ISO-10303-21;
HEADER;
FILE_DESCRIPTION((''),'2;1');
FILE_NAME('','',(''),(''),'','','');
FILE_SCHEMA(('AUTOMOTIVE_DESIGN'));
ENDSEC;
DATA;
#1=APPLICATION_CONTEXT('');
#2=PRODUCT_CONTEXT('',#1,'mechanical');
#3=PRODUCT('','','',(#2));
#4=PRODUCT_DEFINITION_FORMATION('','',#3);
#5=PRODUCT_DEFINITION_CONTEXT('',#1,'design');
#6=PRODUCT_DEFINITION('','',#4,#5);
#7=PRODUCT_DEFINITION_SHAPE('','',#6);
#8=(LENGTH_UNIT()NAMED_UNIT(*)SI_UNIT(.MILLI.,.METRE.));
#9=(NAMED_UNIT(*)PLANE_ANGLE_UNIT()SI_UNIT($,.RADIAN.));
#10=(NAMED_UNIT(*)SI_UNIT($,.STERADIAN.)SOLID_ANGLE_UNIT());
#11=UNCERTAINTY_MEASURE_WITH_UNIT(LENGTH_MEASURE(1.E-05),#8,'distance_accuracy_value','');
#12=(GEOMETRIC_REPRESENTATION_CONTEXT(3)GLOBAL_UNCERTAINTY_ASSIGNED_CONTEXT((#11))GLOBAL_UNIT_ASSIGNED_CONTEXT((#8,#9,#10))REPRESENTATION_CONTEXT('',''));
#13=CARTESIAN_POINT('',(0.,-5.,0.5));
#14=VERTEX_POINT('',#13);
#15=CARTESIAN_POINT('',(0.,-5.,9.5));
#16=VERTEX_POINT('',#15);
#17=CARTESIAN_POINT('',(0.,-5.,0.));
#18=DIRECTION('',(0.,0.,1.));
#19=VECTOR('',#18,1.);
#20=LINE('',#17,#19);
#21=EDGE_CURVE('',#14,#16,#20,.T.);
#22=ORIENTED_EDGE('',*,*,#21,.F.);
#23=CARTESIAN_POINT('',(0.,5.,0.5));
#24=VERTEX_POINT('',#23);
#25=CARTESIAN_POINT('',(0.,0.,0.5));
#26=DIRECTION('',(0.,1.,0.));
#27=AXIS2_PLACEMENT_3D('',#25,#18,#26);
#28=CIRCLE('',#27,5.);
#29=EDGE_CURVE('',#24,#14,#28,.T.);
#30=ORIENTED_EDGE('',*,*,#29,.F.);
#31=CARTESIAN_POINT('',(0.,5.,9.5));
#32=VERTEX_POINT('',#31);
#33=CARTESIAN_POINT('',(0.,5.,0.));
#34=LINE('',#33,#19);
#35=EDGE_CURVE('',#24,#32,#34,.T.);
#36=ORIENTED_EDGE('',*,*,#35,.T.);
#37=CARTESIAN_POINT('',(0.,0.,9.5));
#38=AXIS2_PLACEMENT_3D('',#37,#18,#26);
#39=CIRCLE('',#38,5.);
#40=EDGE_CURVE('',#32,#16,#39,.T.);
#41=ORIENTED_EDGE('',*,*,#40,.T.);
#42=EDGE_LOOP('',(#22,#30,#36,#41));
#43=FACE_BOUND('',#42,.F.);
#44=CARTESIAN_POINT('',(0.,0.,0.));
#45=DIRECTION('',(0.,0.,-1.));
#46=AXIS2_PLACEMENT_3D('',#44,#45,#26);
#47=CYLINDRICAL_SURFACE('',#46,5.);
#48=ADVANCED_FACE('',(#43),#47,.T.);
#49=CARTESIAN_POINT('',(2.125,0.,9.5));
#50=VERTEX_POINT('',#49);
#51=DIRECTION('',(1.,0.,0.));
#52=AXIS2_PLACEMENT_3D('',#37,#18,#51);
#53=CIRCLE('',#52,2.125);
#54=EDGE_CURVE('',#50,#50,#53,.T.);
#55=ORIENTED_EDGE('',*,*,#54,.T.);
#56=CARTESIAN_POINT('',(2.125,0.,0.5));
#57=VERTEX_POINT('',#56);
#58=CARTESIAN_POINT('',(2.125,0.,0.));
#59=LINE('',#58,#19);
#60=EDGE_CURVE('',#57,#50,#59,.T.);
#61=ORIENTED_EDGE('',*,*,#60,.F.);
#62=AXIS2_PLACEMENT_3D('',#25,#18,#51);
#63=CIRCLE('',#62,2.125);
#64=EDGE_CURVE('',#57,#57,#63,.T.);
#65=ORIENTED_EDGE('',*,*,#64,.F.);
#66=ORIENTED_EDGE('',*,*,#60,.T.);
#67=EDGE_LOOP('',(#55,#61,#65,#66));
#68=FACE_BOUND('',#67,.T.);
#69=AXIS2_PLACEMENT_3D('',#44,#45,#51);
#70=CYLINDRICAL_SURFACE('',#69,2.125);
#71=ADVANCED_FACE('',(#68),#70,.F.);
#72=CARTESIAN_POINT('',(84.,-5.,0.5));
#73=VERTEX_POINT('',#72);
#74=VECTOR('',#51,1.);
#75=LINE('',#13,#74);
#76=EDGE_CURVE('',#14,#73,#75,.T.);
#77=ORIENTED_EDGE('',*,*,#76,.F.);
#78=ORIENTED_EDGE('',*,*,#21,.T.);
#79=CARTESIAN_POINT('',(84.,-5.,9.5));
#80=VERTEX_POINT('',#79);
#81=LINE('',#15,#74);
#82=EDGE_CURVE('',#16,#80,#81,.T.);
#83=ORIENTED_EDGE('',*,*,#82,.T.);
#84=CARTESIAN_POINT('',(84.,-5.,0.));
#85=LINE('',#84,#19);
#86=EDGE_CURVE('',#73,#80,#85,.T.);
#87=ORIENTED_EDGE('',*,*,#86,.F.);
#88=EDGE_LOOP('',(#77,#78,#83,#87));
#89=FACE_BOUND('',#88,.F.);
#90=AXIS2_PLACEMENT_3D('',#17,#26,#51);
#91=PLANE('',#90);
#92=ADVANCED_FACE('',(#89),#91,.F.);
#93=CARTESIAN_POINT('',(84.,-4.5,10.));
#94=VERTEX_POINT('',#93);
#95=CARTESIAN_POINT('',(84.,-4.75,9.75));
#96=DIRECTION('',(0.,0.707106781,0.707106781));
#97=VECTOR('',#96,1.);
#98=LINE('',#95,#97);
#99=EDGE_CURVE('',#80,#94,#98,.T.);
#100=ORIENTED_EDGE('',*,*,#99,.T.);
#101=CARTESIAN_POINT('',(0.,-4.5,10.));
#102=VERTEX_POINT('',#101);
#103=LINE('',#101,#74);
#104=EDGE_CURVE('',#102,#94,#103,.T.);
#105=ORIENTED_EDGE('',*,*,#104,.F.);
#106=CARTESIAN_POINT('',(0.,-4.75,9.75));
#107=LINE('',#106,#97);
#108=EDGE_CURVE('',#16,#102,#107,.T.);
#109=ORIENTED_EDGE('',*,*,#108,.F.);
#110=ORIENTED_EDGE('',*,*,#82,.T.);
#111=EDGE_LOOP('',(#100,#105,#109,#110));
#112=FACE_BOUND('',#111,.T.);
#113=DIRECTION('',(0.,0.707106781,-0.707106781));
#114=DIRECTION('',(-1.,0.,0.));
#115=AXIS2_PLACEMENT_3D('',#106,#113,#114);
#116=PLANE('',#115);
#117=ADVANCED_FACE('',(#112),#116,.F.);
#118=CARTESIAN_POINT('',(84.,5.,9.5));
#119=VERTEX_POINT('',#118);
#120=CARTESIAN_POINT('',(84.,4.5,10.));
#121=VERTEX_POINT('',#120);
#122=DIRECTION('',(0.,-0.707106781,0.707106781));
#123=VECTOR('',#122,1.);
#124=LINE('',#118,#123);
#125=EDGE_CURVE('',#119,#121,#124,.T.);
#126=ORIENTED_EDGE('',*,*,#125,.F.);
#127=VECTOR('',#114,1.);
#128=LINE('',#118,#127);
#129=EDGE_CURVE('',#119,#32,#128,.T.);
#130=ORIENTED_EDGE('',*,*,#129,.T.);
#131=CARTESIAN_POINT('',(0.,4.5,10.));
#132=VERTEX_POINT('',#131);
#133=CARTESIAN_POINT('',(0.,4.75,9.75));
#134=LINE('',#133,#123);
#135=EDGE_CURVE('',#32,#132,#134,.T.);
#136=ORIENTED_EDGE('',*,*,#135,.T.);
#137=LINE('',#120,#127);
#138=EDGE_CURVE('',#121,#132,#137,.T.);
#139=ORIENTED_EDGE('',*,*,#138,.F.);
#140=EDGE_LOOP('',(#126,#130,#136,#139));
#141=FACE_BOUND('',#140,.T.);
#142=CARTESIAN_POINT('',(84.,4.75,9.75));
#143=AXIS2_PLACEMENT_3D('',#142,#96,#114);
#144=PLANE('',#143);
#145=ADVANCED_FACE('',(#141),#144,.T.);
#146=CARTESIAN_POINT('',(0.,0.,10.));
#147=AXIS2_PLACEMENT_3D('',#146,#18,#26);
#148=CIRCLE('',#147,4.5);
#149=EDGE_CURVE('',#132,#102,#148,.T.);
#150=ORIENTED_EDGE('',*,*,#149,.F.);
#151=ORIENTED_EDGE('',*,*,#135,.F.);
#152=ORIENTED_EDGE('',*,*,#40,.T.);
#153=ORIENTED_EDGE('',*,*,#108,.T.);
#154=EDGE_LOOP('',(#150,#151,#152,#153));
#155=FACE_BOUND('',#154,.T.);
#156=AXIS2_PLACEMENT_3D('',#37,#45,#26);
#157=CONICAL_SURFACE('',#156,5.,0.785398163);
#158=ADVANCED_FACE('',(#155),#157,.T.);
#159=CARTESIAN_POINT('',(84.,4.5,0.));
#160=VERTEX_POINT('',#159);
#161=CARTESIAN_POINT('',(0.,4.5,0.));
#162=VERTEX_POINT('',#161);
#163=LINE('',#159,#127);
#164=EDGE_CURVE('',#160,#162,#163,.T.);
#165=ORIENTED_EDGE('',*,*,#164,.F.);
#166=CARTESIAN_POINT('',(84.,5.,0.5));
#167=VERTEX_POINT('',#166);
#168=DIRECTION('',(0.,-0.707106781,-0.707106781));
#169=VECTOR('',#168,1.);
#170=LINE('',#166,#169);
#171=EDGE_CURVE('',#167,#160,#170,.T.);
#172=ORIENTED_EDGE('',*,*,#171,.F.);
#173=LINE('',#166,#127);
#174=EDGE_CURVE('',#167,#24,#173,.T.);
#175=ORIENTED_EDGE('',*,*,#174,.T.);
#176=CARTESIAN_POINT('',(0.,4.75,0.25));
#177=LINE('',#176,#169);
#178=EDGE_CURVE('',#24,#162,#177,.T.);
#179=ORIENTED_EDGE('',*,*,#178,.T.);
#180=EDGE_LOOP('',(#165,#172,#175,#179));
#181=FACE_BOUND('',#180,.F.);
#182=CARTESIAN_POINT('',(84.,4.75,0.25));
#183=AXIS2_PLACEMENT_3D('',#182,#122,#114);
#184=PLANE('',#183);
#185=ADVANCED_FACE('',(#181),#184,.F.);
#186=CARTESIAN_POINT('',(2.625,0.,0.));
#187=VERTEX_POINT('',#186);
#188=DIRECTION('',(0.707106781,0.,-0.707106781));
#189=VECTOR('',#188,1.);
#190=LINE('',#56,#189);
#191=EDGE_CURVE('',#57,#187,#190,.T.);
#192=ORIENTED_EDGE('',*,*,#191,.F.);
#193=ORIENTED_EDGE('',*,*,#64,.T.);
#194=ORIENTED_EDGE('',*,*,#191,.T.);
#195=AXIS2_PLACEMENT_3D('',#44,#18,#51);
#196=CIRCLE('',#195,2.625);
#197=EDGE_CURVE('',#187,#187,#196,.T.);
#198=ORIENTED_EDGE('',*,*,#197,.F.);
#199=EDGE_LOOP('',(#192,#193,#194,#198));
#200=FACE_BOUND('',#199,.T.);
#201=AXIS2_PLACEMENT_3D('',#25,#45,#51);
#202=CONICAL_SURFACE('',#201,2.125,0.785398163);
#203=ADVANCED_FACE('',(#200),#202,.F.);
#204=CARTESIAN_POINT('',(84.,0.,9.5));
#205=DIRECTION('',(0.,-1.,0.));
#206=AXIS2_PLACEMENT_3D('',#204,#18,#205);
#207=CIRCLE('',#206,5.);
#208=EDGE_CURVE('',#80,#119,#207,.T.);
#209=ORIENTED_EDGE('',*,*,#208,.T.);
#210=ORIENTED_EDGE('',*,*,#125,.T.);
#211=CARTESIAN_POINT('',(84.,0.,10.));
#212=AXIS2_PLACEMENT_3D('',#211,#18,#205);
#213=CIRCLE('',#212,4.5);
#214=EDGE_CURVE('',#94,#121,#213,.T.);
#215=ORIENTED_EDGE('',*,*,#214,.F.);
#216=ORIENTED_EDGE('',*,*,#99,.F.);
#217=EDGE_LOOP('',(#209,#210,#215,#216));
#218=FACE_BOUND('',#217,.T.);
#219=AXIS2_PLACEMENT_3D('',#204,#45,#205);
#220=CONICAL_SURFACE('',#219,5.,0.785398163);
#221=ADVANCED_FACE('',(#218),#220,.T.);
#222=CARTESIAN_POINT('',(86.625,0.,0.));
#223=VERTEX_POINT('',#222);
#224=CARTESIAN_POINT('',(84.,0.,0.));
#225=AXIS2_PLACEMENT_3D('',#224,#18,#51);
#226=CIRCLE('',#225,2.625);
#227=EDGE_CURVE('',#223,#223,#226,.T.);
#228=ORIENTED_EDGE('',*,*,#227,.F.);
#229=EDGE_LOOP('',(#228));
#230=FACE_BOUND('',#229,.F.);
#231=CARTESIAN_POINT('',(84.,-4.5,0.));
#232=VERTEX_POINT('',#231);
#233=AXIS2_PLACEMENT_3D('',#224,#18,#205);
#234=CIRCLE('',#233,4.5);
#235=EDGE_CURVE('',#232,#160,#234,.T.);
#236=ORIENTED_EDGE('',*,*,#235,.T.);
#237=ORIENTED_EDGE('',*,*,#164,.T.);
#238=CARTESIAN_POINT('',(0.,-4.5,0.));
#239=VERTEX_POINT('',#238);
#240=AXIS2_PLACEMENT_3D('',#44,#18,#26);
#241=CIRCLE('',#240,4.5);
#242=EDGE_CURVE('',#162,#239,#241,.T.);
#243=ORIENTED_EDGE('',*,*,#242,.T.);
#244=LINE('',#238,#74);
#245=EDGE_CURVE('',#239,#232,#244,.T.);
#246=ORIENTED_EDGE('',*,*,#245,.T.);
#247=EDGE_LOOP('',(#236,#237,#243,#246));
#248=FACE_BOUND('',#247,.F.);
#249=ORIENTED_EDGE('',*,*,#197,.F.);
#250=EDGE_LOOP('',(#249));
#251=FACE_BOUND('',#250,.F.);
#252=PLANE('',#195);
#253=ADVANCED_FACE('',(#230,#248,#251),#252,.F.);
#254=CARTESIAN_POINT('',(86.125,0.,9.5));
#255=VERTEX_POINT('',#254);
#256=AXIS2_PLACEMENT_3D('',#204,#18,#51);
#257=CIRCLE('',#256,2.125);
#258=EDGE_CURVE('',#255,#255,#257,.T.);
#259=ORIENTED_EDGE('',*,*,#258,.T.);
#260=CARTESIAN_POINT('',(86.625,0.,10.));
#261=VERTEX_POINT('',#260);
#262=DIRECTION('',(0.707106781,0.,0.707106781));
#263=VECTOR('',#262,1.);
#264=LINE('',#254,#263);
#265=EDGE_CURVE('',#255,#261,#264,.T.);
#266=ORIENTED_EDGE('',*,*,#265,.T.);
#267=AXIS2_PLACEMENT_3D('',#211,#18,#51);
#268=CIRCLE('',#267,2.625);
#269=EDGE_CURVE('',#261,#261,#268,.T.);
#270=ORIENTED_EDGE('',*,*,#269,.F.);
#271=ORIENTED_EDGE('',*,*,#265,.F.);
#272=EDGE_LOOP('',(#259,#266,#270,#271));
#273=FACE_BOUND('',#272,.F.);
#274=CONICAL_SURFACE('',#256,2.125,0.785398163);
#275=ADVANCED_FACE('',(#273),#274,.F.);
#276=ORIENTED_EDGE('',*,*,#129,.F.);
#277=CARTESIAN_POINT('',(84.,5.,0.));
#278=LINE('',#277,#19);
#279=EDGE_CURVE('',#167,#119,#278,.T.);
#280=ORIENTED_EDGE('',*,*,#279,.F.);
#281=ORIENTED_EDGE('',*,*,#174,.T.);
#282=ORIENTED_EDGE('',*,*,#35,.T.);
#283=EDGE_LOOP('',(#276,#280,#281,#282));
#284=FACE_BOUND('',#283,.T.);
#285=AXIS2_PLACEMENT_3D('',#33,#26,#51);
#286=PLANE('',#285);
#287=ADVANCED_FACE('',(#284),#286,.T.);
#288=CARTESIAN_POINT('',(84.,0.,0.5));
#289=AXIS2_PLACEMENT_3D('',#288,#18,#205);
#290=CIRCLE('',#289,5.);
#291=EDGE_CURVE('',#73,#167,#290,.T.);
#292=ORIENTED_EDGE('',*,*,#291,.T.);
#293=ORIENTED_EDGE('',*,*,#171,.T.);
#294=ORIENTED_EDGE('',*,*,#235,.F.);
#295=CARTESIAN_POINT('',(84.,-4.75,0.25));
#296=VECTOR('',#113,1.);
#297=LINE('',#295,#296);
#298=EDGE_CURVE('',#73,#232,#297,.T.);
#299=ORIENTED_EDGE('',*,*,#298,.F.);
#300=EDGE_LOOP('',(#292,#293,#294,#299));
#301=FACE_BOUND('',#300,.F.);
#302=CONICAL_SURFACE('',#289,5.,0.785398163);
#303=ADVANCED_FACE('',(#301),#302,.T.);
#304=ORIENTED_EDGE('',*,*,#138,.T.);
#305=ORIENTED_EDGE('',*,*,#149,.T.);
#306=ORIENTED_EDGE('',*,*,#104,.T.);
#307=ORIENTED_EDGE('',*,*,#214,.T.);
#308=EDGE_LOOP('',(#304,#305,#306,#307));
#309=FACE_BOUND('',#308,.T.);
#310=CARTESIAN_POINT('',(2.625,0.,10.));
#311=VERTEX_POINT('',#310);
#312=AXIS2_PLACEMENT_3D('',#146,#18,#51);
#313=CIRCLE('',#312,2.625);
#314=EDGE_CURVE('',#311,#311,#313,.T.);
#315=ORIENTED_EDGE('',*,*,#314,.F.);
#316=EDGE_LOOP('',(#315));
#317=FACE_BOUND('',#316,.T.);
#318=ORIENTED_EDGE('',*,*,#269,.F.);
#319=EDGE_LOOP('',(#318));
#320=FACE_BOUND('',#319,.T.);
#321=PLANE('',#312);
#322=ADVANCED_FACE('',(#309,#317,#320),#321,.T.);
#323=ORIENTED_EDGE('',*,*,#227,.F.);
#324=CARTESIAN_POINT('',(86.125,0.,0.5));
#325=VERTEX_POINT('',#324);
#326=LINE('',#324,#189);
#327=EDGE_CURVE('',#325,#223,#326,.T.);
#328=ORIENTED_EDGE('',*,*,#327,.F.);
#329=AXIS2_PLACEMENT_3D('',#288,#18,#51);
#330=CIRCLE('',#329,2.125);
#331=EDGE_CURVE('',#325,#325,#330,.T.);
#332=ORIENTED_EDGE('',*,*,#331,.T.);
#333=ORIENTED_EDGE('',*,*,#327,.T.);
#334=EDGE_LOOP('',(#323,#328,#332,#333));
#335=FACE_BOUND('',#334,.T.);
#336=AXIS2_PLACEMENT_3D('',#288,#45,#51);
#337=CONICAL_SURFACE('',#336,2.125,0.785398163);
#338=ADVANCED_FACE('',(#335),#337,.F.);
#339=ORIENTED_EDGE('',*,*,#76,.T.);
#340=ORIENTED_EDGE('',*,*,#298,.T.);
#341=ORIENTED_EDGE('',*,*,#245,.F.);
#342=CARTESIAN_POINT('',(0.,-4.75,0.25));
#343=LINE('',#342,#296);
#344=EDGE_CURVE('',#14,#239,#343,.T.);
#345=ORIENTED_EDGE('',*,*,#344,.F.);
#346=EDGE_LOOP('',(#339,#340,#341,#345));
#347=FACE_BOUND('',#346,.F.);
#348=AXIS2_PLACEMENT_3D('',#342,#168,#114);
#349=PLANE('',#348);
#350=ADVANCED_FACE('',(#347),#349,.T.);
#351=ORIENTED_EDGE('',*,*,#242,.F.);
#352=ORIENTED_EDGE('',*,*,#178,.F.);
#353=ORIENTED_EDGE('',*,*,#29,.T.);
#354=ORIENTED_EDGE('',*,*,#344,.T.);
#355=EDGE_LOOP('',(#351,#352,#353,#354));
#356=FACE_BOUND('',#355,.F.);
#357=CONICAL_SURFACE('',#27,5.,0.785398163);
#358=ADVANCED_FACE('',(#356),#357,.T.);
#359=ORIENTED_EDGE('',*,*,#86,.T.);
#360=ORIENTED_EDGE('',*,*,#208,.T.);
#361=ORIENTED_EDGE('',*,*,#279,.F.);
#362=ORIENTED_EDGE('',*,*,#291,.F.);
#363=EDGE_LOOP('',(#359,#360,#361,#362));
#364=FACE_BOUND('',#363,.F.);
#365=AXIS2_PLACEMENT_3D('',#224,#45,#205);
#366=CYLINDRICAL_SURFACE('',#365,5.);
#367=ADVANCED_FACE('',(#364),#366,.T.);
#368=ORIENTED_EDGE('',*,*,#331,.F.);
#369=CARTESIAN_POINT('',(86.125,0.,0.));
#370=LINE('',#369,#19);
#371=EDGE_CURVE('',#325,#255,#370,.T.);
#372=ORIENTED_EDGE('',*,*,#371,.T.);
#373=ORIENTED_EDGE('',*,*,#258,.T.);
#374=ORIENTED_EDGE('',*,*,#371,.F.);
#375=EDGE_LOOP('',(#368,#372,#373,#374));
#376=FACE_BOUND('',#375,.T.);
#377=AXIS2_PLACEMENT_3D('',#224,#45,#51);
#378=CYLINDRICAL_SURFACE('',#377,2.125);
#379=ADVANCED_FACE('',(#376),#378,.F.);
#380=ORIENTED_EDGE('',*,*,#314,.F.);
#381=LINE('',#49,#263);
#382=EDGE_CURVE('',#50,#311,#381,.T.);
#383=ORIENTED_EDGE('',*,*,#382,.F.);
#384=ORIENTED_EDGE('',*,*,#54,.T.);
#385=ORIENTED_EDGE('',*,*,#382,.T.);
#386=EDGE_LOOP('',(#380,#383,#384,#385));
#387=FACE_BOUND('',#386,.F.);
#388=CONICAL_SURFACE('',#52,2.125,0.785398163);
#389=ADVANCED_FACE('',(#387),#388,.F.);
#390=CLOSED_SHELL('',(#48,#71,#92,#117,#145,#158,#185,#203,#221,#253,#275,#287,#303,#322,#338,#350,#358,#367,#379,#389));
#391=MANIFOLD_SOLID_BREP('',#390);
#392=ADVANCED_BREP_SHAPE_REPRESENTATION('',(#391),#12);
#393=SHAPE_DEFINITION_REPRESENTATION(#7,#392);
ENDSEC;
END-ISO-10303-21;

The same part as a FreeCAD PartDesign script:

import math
import FreeCAD as App
import Part
import Sketcher
Q = App.Units.Quantity


def edges_at(feature, points):
    """Names of the edges that pass closest to the given points."""
    edges = feature.Shape.Edges
    near = lambda p: min(range(len(edges)), key=lambda i: edges[i].distToShape(Part.Vertex(*p))[0])
    return sorted({f"Edge{near(p) + 1}" for p in points})

doc = App.newDocument("Part")
params = doc.addObject("Spreadsheet::Sheet", "Params")
for row, (alias, value) in enumerate([
    ("sketch1_radius", "5 mm"),
    ("sketch1_diameter", "4.25 mm"),
    ("sketch1_width", "84 mm"),
    ("pad1_length", "10 mm"),
    ("chamfer_size", "0.5 mm"),
], start=1):
    params.set(f"A{row}", alias)
    params.set(f"B{row}", "=" + value)
    params.setAlias(f"B{row}", alias)

body = doc.addObject("PartDesign::Body", "Body")

# Sketch on XY plane
sketch1 = doc.addObject("Sketcher::SketchObject", "Sketch")
body.addObject(sketch1)
sketch1.AttachmentSupport = (doc.XY_Plane, [""])
sketch1.MapMode = "FlatFace"
sketch1.addGeometry([
    Part.LineSegment(App.Vector(0, -5, 0), App.Vector(84, -5, 0)),  # 0
    Part.ArcOfCircle(Part.Circle(App.Vector(84, 0, 0), App.Vector(0, 0, 1), 5), math.radians(-90), math.radians(90)),  # 1
    Part.LineSegment(App.Vector(84, 5, 0), App.Vector(0, 5, 0)),  # 2
    Part.ArcOfCircle(Part.Circle(App.Vector(0, 0, 0), App.Vector(0, 0, 1), 5), math.radians(90), math.radians(270)),  # 3
    Part.Circle(App.Vector(0, 0, 0), App.Vector(0, 0, 1), 2.125),  # 4
    Part.Circle(App.Vector(84, 0, 0), App.Vector(0, 0, 1), 2.125),  # 5
], False)
sketch1.addConstraint([
    Sketcher.Constraint("Tangent", 0, 2, 1, 1),
    Sketcher.Constraint("Tangent", 1, 2, 2, 1),
    Sketcher.Constraint("Tangent", 2, 2, 3, 1),
    Sketcher.Constraint("Tangent", 3, 2, 0, 1),
    Sketcher.Constraint("Horizontal", 0),
    Sketcher.Constraint("Horizontal", 2),
    Sketcher.Constraint("Coincident", 3, 3, -1, 1),
    Sketcher.Constraint("Coincident", 4, 3, -1, 1),
    Sketcher.Constraint("Coincident", 5, 3, 1, 3),
    Sketcher.Constraint("Equal", 4, 5),
    Sketcher.Constraint("Radius", 1, Q("5 mm")),
    Sketcher.Constraint("Diameter", 4, Q("4.25 mm")),
    Sketcher.Constraint("DistanceX", 0, 1, 0, 2, Q("84 mm")),
])
sketch1.setExpression("Constraints[10]", "Params.sketch1_radius")
sketch1.setExpression("Constraints[11]", "Params.sketch1_diameter")
sketch1.setExpression("Constraints[12]", "Params.sketch1_width")
pad1 = doc.addObject("PartDesign::Pad", "Pad")
body.addObject(pad1)
pad1.Profile = sketch1
pad1.setExpression("Length", "Params.pad1_length")
doc.recompute()

chamfer = doc.addObject("PartDesign::Chamfer", "Chamfer")
body.addObject(chamfer)
chamfer.Base = (pad1, edges_at(pad1, [
    (-2.125, 0, 10),
    (-2.125, 0, 0),
    (42, -5, 0),
    (89, 0, 0),
    (42, 5, 0),
    (-5, 0, 0),
    (42, -5, 10),
    (89, 0, 10),
    (42, 5, 10),
    (-5, 0, 10),
    (81.875, 0, 10),
    (81.875, 0, 0),
]))
chamfer.setExpression("Size", "Params.chamfer_size")

doc.recompute()
